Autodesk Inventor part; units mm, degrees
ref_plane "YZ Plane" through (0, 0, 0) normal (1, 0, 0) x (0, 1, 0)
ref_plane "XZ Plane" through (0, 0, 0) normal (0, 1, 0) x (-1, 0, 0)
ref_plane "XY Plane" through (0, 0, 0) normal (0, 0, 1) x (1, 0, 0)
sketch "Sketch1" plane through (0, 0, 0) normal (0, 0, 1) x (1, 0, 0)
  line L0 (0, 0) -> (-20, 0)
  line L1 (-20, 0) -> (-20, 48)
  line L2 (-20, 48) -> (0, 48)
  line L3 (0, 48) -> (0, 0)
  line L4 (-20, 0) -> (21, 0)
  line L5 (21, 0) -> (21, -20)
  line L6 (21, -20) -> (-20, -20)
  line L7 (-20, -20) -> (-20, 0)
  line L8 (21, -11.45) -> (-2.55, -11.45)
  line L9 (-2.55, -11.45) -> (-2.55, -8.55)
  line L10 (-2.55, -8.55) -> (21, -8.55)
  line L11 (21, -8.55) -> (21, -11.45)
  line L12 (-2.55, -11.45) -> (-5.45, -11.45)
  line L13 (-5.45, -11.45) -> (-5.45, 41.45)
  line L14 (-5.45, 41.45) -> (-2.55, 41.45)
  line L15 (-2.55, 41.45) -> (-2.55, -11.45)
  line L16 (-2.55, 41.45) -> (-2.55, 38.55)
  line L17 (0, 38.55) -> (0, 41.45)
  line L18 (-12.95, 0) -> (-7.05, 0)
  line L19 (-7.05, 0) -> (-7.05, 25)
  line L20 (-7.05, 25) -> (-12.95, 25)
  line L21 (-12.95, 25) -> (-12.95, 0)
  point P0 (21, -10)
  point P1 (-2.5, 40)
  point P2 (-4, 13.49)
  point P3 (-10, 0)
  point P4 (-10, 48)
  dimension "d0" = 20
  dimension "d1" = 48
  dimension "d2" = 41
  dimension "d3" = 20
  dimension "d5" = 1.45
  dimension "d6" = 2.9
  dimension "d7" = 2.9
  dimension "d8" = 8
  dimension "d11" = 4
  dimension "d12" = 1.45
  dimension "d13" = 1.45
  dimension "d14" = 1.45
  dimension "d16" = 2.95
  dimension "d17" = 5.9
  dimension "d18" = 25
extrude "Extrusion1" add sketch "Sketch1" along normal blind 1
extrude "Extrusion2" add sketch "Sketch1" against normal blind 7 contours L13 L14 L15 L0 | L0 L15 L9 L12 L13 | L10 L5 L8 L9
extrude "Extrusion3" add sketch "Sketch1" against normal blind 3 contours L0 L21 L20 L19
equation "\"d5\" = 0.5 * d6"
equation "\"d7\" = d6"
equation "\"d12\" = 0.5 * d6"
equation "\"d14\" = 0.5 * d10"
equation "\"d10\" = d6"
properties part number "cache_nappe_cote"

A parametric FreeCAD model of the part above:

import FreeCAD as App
import Part
import Sketcher
from FreeCAD import Vector

doc = App.newDocument("Part")
body = doc.addObject("PartDesign::Body", "Body")

# Sketch on XY plane
sketch1 = body.newObject("Sketcher::SketchObject", "Sketch")
sketch1.AttachmentSupport = (doc.getObject("XY_Plane"), [""])
sketch1.MapMode = "FlatFace"
sketch1.addGeometry([
    Part.LineSegment(Vector(21, -20, 0), Vector(21, 0, 0)),  # 0
    Part.LineSegment(Vector(21, 0, 0), Vector(0, 0, 0)),  # 1
    Part.LineSegment(Vector(0, 0, 0), Vector(0, 48, 0)),  # 2
    Part.LineSegment(Vector(0, 48, 0), Vector(-20, 48, 0)),  # 3
    Part.LineSegment(Vector(-20, 48, 0), Vector(-20, -20, 0)),  # 4
    Part.LineSegment(Vector(-20, -20, 0), Vector(21, -20, 0)),  # 5
], False)
sketch1.addConstraint([
    Sketcher.Constraint("Coincident", 0, 2, 1, 1),
    Sketcher.Constraint("Coincident", 1, 2, 2, 1),
    Sketcher.Constraint("Coincident", 2, 2, 3, 1),
    Sketcher.Constraint("Coincident", 3, 2, 4, 1),
    Sketcher.Constraint("Coincident", 4, 2, 5, 1),
    Sketcher.Constraint("Coincident", 5, 2, 0, 1),
    Sketcher.Constraint("Vertical", 0),
    Sketcher.Constraint("Horizontal", 1),
    Sketcher.Constraint("Vertical", 2),
    Sketcher.Constraint("Horizontal", 3),
    Sketcher.Constraint("Vertical", 4),
    Sketcher.Constraint("Horizontal", 5),
    Sketcher.Constraint("Coincident", 1, 2, -1, 1),
    Sketcher.Constraint("Equal", 3, 0),
    Sketcher.Constraint("DistanceX", 3, 2, 3, 1, 20.0),
    Sketcher.Constraint("DistanceX", 5, 1, 5, 2, 41.0),
    Sketcher.Constraint("DistanceY", 2, 1, 2, 2, 48.0),
])
pad1 = body.newObject("PartDesign::Pad", "Pad")
pad1.Profile = sketch1
pad1.Length = 1

# Sketch on XY plane
sketch2 = body.newObject("Sketcher::SketchObject", "Sketch001")
sketch2.AttachmentSupport = (doc.getObject("XY_Plane"), [""])
sketch2.MapMode = "FlatFace"
sketch2.addGeometry([
    Part.LineSegment(Vector(-5.5, 41.5, 0), Vector(-5.5, -11.4, 0)),  # 0
    Part.LineSegment(Vector(-5.5, -11.4, 0), Vector(21, -11.4, 0)),  # 1
    Part.LineSegment(Vector(21, -11.4, 0), Vector(21, -8.6, 0)),  # 2
    Part.LineSegment(Vector(21, -8.6, 0), Vector(-2.5, -8.6, 0)),  # 3
    Part.LineSegment(Vector(-2.5, -8.6, 0), Vector(-2.5, 41.5, 0)),  # 4
    Part.LineSegment(Vector(-2.5, 41.5, 0), Vector(-5.5, 41.5, 0)),  # 5
], False)
sketch2.addConstraint([
    Sketcher.Constraint("Coincident", 0, 2, 1, 1),
    Sketcher.Constraint("Coincident", 1, 2, 2, 1),
    Sketcher.Constraint("Coincident", 2, 2, 3, 1),
    Sketcher.Constraint("Coincident", 3, 2, 4, 1),
    Sketcher.Constraint("Coincident", 4, 2, 5, 1),
    Sketcher.Constraint("Coincident", 5, 2, 0, 1),
    Sketcher.Constraint("Vertical", 0),
    Sketcher.Constraint("Horizontal", 1),
    Sketcher.Constraint("Vertical", 2),
    Sketcher.Constraint("Horizontal", 3),
    Sketcher.Constraint("Vertical", 4),
    Sketcher.Constraint("Horizontal", 5),
    Sketcher.Constraint("Equal", 5, 2),
    Sketcher.Constraint("DistanceX", 5, 2, 5, 1, 2.9),
    Sketcher.Constraint("DistanceY", 4, 1, 4, 2, 50.0),
    Sketcher.Constraint("DistanceX", -1, 1, 1, 2, 21.0),
    Sketcher.Constraint("DistanceX", 1, 1, 1, 2, 26.45),
    Sketcher.Constraint("DistanceY", 0, 2, -1, 1, 11.45),
])
pad2 = body.newObject("PartDesign::Pad", "Pad001")
pad2.Profile = sketch2
pad2.Length = 7
pad2.Reversed = True

# Sketch on XY plane
sketch3 = body.newObject("Sketcher::SketchObject", "Sketch002")
sketch3.AttachmentSupport = (doc.getObject("XY_Plane"), [""])
sketch3.MapMode = "FlatFace"
sketch3.addGeometry([
    Part.LineSegment(Vector(-13, 0, 0), Vector(-7, 0, 0)),
    Part.LineSegment(Vector(-7, 0, 0), Vector(-7, 25, 0)),
    Part.LineSegment(Vector(-7, 25, 0), Vector(-13, 25, 0)),
    Part.LineSegment(Vector(-13, 25, 0), Vector(-13, 0, 0)),
], False)
sketch3.addConstraint([
    Sketcher.Constraint("Coincident", 0, 2, 1, 1),
    Sketcher.Constraint("Coincident", 1, 2, 2, 1),
    Sketcher.Constraint("Coincident", 2, 2, 3, 1),
    Sketcher.Constraint("Coincident", 3, 2, 0, 1),
    Sketcher.Constraint("Horizontal", 0),
    Sketcher.Constraint("Vertical", 1),
    Sketcher.Constraint("Horizontal", 2),
    Sketcher.Constraint("Vertical", 3),
    Sketcher.Constraint("PointOnObject", 0, 2, -1),
    Sketcher.Constraint("DistanceY", 1, 1, 1, 2, 25.0),
    Sketcher.Constraint("DistanceX", 0, 1, 0, 2, 5.9),
    Sketcher.Constraint("DistanceX", 0, 2, -1, 1, 7.05),
])
pad3 = body.newObject("PartDesign::Pad", "Pad002")
pad3.Profile = sketch3
pad3.Length = 3
pad3.Reversed = True

doc.recompute()
